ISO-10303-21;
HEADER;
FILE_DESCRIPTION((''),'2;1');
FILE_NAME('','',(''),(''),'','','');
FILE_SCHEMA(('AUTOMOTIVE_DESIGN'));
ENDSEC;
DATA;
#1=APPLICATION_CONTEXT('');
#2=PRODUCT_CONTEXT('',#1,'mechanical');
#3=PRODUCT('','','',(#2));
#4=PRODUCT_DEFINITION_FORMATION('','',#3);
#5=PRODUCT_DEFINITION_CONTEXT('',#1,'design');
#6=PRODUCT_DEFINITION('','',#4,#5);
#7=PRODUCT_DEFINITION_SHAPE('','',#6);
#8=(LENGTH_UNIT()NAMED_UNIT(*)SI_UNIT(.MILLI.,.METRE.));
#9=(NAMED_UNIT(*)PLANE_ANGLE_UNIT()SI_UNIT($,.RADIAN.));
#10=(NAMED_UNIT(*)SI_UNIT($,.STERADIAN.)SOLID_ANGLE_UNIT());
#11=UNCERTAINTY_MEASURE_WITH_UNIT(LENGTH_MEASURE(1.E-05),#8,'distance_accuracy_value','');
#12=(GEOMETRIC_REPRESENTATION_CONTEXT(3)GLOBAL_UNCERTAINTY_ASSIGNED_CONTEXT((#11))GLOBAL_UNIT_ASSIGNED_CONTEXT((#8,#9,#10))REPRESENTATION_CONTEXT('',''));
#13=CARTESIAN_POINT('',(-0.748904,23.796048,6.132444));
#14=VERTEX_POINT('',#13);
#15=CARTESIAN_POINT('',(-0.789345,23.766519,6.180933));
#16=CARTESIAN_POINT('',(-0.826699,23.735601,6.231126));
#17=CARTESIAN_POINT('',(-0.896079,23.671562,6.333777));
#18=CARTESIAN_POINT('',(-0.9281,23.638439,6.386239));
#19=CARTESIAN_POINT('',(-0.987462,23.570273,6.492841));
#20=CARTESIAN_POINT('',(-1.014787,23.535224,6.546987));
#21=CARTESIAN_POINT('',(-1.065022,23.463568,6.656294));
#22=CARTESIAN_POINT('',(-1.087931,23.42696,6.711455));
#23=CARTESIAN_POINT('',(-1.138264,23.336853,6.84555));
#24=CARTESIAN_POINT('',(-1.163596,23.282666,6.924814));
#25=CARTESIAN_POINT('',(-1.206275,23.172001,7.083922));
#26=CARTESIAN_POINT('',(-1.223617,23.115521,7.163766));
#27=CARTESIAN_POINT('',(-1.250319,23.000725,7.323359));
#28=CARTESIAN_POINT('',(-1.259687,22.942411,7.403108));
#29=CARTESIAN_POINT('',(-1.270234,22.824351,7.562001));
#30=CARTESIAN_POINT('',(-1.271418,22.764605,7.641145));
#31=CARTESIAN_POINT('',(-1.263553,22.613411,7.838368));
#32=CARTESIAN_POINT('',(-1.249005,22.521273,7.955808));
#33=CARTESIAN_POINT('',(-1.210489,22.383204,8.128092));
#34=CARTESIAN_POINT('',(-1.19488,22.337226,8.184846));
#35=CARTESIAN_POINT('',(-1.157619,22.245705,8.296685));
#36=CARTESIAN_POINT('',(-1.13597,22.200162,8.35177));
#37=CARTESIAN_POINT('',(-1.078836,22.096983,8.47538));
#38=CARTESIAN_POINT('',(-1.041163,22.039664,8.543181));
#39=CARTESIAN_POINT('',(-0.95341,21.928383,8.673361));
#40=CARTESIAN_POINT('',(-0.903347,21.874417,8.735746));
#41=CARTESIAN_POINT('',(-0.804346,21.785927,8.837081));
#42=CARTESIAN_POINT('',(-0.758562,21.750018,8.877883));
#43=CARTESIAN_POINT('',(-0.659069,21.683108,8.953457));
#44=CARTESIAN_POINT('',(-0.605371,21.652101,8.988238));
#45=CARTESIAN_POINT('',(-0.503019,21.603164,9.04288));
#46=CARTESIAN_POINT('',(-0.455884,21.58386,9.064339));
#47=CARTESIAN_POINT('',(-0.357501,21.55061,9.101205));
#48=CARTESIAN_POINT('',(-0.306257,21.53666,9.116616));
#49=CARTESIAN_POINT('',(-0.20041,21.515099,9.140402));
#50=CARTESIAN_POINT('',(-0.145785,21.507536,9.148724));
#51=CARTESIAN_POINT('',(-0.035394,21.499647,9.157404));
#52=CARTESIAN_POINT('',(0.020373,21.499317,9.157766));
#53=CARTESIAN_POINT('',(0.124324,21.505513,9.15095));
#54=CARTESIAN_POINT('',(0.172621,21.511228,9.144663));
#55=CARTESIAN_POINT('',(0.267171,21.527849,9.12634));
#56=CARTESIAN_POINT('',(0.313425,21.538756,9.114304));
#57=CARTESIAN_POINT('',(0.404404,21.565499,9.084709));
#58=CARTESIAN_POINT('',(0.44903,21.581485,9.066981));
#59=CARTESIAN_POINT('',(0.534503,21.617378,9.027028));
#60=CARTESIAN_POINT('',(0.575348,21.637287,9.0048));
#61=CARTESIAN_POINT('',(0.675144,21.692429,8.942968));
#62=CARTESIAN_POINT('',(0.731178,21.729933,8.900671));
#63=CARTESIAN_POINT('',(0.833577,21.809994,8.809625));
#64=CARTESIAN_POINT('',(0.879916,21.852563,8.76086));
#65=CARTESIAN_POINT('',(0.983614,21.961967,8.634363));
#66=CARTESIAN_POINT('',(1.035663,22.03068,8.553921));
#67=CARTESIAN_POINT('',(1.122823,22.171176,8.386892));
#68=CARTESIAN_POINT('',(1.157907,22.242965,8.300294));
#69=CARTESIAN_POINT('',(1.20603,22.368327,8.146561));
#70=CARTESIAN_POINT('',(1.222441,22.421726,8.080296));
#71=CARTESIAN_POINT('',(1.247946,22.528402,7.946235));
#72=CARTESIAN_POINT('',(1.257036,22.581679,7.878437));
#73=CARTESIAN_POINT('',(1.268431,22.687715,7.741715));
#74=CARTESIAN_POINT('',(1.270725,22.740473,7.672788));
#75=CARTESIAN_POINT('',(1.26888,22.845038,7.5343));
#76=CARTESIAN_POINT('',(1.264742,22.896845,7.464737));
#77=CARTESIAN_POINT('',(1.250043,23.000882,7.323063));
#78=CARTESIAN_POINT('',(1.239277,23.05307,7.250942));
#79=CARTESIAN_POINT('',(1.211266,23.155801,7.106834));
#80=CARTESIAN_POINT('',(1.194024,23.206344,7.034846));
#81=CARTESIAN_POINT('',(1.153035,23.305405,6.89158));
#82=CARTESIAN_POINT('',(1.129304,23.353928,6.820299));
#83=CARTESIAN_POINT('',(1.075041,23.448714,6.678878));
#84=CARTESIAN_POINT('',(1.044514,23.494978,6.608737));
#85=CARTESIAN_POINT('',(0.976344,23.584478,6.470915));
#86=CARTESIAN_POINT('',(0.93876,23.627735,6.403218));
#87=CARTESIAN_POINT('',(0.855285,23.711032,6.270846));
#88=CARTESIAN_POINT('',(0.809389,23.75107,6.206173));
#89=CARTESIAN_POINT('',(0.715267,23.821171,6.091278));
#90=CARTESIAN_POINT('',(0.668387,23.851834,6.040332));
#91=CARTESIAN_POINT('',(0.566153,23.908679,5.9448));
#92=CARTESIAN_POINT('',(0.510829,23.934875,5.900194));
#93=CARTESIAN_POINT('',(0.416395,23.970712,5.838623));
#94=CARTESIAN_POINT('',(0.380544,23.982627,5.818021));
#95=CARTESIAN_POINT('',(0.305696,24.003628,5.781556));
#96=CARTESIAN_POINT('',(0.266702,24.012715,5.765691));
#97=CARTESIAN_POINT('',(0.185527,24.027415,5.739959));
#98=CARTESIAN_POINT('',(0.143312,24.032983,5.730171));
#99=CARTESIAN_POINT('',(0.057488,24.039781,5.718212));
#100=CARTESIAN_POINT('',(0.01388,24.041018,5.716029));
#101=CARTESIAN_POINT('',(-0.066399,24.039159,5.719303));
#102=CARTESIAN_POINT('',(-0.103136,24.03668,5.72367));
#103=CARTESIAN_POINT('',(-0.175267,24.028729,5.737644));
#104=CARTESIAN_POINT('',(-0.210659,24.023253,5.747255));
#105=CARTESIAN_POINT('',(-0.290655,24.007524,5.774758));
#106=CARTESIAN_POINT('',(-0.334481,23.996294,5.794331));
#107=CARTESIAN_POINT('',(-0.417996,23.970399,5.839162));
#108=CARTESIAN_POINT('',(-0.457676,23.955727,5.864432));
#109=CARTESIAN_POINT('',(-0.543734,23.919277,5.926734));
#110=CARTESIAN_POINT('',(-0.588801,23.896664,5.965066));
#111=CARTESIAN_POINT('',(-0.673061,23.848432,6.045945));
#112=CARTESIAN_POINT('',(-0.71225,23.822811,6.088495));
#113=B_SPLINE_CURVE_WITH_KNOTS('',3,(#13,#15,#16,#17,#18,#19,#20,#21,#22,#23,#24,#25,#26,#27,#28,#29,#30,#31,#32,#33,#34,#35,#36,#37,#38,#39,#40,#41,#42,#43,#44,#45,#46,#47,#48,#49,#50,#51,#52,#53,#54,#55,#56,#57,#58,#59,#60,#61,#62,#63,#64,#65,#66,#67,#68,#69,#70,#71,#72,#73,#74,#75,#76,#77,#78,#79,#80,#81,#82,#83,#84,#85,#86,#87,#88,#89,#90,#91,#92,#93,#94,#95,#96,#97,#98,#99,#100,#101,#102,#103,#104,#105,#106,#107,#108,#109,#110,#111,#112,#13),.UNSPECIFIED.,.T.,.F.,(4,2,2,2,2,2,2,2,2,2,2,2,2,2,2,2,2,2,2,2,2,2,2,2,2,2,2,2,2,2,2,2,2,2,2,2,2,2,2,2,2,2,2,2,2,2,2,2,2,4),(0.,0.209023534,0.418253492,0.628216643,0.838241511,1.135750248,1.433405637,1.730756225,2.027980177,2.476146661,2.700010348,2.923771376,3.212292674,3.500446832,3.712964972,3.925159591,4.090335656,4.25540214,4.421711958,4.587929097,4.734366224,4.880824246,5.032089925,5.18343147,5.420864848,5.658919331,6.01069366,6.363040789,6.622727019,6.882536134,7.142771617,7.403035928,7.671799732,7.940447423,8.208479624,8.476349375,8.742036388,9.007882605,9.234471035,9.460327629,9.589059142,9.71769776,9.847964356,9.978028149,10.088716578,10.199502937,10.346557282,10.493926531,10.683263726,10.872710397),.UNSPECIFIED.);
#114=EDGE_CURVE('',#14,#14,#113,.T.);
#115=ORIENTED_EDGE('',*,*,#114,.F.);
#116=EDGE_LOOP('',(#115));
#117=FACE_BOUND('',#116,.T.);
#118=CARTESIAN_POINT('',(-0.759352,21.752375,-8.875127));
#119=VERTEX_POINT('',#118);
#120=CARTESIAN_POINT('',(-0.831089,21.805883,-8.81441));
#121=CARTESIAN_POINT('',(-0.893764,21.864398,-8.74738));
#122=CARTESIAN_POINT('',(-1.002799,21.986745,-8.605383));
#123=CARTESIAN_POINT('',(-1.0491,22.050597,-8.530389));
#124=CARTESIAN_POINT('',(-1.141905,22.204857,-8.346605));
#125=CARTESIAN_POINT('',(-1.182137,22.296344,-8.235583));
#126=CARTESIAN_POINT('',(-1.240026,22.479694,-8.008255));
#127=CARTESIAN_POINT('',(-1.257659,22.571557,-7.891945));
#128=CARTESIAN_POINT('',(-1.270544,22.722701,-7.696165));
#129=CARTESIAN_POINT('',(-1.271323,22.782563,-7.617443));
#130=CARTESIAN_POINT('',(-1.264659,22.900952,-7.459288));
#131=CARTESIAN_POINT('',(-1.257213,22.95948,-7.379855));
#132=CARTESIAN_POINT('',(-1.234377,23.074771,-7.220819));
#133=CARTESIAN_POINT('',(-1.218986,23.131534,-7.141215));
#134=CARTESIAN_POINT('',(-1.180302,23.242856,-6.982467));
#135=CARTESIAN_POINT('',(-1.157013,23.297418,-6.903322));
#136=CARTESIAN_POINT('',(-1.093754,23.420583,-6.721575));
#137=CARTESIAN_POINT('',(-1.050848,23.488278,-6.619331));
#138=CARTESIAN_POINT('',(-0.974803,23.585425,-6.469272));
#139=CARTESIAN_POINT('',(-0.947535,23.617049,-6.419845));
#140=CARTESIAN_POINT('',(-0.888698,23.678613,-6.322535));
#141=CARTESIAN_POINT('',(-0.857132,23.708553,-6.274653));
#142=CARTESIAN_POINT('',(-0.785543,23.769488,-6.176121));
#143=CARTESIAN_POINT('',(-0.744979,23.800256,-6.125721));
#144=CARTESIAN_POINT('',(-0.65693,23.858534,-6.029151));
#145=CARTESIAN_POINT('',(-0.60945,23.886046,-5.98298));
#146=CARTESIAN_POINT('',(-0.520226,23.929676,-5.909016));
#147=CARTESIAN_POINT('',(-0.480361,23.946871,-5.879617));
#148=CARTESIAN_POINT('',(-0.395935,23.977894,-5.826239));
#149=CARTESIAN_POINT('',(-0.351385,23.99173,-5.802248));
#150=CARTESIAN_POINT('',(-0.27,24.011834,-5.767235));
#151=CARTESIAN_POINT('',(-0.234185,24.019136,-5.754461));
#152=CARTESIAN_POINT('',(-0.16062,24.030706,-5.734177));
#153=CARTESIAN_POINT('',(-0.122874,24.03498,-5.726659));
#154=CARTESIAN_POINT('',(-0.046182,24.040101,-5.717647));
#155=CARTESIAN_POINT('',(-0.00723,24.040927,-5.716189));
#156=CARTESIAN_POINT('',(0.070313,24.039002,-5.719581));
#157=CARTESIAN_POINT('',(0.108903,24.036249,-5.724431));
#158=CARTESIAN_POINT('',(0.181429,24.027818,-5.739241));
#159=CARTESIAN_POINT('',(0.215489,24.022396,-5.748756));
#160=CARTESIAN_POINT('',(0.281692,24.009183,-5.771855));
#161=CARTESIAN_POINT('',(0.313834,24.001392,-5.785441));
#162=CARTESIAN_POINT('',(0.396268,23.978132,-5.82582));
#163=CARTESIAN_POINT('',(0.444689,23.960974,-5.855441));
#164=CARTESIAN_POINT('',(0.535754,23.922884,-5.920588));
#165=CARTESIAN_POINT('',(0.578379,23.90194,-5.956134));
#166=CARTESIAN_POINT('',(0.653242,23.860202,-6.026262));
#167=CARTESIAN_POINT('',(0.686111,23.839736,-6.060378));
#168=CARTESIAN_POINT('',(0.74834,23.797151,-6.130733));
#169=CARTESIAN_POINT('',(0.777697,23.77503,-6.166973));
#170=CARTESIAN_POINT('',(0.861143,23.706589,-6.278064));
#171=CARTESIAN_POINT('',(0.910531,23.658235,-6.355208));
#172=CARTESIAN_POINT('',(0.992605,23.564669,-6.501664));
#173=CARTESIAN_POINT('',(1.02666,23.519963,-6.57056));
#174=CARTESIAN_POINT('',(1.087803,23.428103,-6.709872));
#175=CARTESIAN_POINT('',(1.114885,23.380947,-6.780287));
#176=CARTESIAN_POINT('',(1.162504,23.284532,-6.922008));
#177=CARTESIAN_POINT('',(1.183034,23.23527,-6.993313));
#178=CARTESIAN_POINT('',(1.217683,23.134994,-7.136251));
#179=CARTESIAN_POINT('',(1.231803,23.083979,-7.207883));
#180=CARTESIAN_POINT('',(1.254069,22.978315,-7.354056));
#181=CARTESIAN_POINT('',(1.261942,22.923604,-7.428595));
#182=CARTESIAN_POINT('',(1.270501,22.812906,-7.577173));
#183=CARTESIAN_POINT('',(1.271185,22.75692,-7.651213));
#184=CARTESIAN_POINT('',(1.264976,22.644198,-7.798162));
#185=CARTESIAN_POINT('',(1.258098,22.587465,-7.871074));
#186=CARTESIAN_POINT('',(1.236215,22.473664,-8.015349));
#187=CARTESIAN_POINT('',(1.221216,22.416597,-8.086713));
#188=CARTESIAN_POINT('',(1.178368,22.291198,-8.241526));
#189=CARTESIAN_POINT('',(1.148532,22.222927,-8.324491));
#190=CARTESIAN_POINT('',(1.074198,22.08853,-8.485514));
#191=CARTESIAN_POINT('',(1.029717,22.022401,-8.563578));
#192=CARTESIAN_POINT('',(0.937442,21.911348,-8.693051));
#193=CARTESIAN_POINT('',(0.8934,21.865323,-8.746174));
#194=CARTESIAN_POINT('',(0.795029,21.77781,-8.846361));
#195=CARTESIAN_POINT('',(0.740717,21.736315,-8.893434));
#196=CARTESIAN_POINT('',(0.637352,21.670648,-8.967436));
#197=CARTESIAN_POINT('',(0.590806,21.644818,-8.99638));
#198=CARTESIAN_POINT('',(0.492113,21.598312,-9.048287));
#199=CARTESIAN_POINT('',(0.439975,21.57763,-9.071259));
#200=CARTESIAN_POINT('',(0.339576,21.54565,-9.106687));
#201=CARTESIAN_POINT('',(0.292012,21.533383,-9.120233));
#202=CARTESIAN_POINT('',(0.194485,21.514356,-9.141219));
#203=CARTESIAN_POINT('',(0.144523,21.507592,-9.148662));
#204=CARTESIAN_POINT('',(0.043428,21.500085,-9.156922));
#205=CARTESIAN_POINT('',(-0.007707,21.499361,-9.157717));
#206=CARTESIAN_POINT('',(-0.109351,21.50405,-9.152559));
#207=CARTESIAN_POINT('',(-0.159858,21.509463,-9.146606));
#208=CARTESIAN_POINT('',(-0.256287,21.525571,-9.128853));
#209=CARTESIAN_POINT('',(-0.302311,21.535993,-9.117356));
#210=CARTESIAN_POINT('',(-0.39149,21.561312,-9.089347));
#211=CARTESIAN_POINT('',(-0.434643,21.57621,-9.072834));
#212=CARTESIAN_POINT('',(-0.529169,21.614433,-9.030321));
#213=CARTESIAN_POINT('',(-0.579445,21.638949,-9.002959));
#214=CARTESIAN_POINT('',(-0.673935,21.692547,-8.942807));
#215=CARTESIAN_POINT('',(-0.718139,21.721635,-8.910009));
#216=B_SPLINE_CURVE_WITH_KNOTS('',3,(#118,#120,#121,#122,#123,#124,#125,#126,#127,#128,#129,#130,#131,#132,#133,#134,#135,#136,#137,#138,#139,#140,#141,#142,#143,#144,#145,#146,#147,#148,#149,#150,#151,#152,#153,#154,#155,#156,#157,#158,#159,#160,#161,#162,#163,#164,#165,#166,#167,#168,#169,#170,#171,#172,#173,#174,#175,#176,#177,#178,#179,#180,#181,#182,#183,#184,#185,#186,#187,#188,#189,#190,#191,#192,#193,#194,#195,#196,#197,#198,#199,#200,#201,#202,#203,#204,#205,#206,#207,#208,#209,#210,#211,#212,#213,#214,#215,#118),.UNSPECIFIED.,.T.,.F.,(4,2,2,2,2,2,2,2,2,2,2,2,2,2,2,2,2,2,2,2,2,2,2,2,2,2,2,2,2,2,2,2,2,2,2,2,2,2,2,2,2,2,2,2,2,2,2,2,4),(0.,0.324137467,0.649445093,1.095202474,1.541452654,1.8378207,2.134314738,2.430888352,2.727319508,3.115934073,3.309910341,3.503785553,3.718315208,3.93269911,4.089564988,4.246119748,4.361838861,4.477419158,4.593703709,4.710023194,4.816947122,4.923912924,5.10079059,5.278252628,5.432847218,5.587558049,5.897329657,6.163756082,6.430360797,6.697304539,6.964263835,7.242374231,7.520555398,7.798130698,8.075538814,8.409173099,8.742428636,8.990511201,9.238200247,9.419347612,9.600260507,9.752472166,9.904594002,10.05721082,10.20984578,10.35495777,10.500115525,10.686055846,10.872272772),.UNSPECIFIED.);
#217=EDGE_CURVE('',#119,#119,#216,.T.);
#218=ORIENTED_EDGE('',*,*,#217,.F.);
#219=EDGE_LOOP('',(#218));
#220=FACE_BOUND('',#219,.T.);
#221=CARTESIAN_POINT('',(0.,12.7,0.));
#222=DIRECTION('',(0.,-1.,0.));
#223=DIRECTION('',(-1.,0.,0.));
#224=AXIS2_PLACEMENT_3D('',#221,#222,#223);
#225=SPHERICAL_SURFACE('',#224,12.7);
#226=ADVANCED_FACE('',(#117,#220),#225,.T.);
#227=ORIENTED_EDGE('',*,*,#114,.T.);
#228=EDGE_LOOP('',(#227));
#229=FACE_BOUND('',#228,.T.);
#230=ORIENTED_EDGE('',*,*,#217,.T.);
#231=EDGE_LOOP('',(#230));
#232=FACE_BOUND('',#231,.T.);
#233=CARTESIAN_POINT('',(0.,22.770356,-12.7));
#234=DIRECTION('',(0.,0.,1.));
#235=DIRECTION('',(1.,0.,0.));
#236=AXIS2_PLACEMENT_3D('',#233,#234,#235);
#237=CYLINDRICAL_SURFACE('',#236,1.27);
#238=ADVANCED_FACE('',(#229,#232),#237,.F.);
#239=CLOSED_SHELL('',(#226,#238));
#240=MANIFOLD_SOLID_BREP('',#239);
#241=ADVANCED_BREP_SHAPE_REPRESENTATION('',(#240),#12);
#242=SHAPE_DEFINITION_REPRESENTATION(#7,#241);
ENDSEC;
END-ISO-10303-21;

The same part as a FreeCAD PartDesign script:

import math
import FreeCAD as App
import Part
import Sketcher

V = App.Vector
Q = App.Units.Quantity

doc = App.newDocument("Part")
body = doc.addObject("PartDesign::Body", "Body")

sketch1 = body.newObject("Sketcher::SketchObject", "Sketch")
sketch1.AttachmentSupport = (doc.getObject("XY_Plane"), [""])
sketch1.MapMode = "FlatFace"
sketch1.addGeometry([
    Part.LineSegment(V(0, 25.4, 0), V(0, 0, 0)),
    Part.ArcOfCircle(Part.Circle(V(0, 12.7, 0), V(0, 0, 1), 12.7), math.radians(-90), math.radians(90)),
], False)
sketch1.addConstraint([
    Sketcher.Constraint("Coincident", 0, 1, 1, 2),
    Sketcher.Constraint("Coincident", 1, 1, 0, 2),
    Sketcher.Constraint("Vertical", 0),
    Sketcher.Constraint("Coincident", 1, 1, -1, 1),
    Sketcher.Constraint("PointOnObject", 1, 3, -2),
    Sketcher.Constraint("Radius", 1, Q("0.5 in")),
])
revolution = body.newObject("PartDesign::Revolution", "Revolution")
revolution.Profile = sketch1
revolution.ReferenceAxis = (sketch1, ["V_Axis"])
revolution.Angle = 360

sketch2 = body.newObject("Sketcher::SketchObject", "Sketch001")
sketch2.AttachmentSupport = (doc.getObject("XY_Plane"), [""])
sketch2.MapMode = "FlatFace"
sketch2.addGeometry(Part.Circle(V(0, 22.770356, 0), V(0, 0, 1), 1.27), False)
sketch2.addConstraint([
    Sketcher.Constraint("PointOnObject", 0, 3, -2),
    Sketcher.Constraint("Diameter", 0, Q("0.1 in")),
    Sketcher.Constraint("DistanceY", -1, 1, 0, 3, Q("22.770356 mm")),
])
pocket1 = body.newObject("PartDesign::Pocket", "Pocket")
pocket1.Profile = sketch2
pocket1.Type = "ThroughAll"
pocket1.Midplane = True

doc.recompute()
